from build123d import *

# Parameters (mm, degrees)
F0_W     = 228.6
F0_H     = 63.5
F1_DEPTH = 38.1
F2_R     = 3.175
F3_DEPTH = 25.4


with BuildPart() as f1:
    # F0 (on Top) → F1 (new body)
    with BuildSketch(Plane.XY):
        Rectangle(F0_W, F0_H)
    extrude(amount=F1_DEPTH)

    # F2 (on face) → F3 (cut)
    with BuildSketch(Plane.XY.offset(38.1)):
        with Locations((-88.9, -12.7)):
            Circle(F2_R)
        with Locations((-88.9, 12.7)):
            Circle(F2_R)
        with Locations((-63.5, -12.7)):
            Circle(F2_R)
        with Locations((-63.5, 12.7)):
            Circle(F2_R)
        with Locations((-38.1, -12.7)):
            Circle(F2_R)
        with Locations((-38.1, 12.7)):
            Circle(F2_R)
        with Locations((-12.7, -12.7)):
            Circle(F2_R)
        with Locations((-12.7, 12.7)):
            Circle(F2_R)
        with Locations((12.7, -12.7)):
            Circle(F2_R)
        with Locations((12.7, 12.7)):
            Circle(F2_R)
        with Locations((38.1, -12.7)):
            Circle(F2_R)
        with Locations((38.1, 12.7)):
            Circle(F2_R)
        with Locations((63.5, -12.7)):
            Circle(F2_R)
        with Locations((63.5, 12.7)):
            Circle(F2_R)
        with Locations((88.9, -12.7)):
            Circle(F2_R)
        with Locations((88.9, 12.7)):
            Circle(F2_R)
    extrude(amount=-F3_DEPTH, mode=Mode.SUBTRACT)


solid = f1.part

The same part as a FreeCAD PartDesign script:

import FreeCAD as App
import Part
import Sketcher

V = App.Vector
Q = App.Units.Quantity

doc = App.newDocument("Part")
body = doc.addObject("PartDesign::Body", "Body")

sketch1 = body.newObject("Sketcher::SketchObject", "Sketch")
sketch1.AttachmentSupport = (doc.getObject("XY_Plane"), [""])
sketch1.MapMode = "FlatFace"
sketch1.addGeometry([
    Part.LineSegment(V(-114, 32, 0), V(-114, -32, 0)),
    Part.LineSegment(V(-114, -32, 0), V(114, -32, 0)),
    Part.LineSegment(V(114, -32, 0), V(114, 32, 0)),
    Part.LineSegment(V(114, 32, 0), V(-114, 32, 0)),
], False)
sketch1.addConstraint([
    Sketcher.Constraint("Coincident", 0, 2, 1, 1),
    Sketcher.Constraint("Coincident", 1, 2, 2, 1),
    Sketcher.Constraint("Coincident", 2, 2, 3, 1),
    Sketcher.Constraint("Coincident", 3, 2, 0, 1),
    Sketcher.Constraint("Vertical", 0),
    Sketcher.Constraint("Horizontal", 1),
    Sketcher.Constraint("Vertical", 2),
    Sketcher.Constraint("Horizontal", 3),
    Sketcher.Constraint("Symmetric", 0, 2, 2, 2, -1, 1),
    Sketcher.Constraint("DistanceX", 1, 1, 1, 2, Q("9 in")),
    Sketcher.Constraint("DistanceY", 0, 2, 0, 1, Q("2.5 in")),
])
pad1 = body.newObject("PartDesign::Pad", "Pad")
pad1.Profile = sketch1
pad1.Length = Q("1.5 in")

sketch2 = body.newObject("Sketcher::SketchObject", "Sketch001")
sketch2.AttachmentSupport = (doc.getObject("XY_Plane"), [""])
sketch2.MapMode = "FlatFace"
sketch2.AttachmentOffset = App.Placement(V(0, 0, 1.5 * 25.4), App.Rotation())
sketch2.addGeometry([
    Part.Circle(V(-88.9, -12.7, 0), V(0, 0, 1), 3.2),
    Part.Circle(V(-88.9, 12.7, 0), V(0, 0, 1), 3.2),
    Part.Circle(V(-63.5, -12.7, 0), V(0, 0, 1), 3.2),
    Part.Circle(V(-63.5, 12.7, 0), V(0, 0, 1), 3.2),
    Part.Circle(V(-38.1, -12.7, 0), V(0, 0, 1), 3.2),
    Part.Circle(V(-38.1, 12.7, 0), V(0, 0, 1), 3.2),
    Part.Circle(V(-12.7, -12.7, 0), V(0, 0, 1), 3.2),
    Part.Circle(V(-12.7, 12.7, 0), V(0, 0, 1), 3.2),
    Part.Circle(V(12.7, -12.7, 0), V(0, 0, 1), 3.2),
    Part.Circle(V(12.7, 12.7, 0), V(0, 0, 1), 3.2),
    Part.Circle(V(38.1, -12.7, 0), V(0, 0, 1), 3.2),
    Part.Circle(V(38.1, 12.7, 0), V(0, 0, 1), 3.2),
    Part.Circle(V(63.5, -12.7, 0), V(0, 0, 1), 3.2),
    Part.Circle(V(63.5, 12.7, 0), V(0, 0, 1), 3.2),
    Part.Circle(V(88.9, -12.7, 0), V(0, 0, 1), 3.2),
    Part.Circle(V(88.9, 12.7, 0), V(0, 0, 1), 3.2),
], False)
sketch2.addConstraint([
    Sketcher.Constraint("Equal", 0, 1),
    Sketcher.Constraint("Equal", 1, 2),
    Sketcher.Constraint("Equal", 2, 3),
    Sketcher.Constraint("Equal", 3, 4),
    Sketcher.Constraint("Equal", 4, 5),
    Sketcher.Constraint("Equal", 5, 6),
    Sketcher.Constraint("Equal", 6, 7),
    Sketcher.Constraint("Equal", 7, 8),
    Sketcher.Constraint("Equal", 8, 9),
    Sketcher.Constraint("Equal", 9, 10),
    Sketcher.Constraint("Equal", 10, 11),
    Sketcher.Constraint("Equal", 11, 12),
    Sketcher.Constraint("Equal", 12, 13),
    Sketcher.Constraint("Equal", 13, 14),
    Sketcher.Constraint("Equal", 14, 15),
    Sketcher.Constraint("Symmetric", 7, 3, 8, 3, -1, 1),
    Sketcher.Constraint("Symmetric", 6, 3, 9, 3, -1, 1),
    Sketcher.Constraint("Symmetric", 5, 3, 10, 3, -1, 1),
    Sketcher.Constraint("Symmetric", 4, 3, 11, 3, -1, 1),
    Sketcher.Constraint("Symmetric", 3, 3, 12, 3, -1, 1),
    Sketcher.Constraint("Symmetric", 2, 3, 13, 3, -1, 1),
    Sketcher.Constraint("Symmetric", 1, 3, 14, 3, -1, 1),
    Sketcher.Constraint("Symmetric", 0, 3, 15, 3, -1, 1),
    Sketcher.Constraint("Symmetric", 6, 3, 8, 3, -2),
    Sketcher.Constraint("Symmetric", 4, 3, 10, 3, -2),
    Sketcher.Constraint("Symmetric", 2, 3, 12, 3, -2),
    Sketcher.Constraint("Symmetric", 0, 3, 14, 3, -2),
    Sketcher.Constraint("Horizontal", 0, 3, 2, 3),
    Sketcher.Constraint("Horizontal", 2, 3, 4, 3),
    Sketcher.Constraint("Horizontal", 4, 3, 6, 3),
    Sketcher.Constraint("Diameter", 0, Q("0.25 in")),
    Sketcher.Constraint("DistanceY", 0, 3, 1, 3, Q("1 in")),
    Sketcher.Constraint("DistanceX", 0, 3, 2, 3, Q("1 in")),
    Sketcher.Constraint("DistanceX", 2, 3, 4, 3, Q("1 in")),
    Sketcher.Constraint("DistanceX", 4, 3, 6, 3, Q("1 in")),
    Sketcher.Constraint("DistanceX", 6, 3, 8, 3, Q("1 in")),
])
pocket1 = body.newObject("PartDesign::Pocket", "Pocket")
pocket1.Profile = sketch2
pocket1.Length = Q("1 in")

doc.recompute()
